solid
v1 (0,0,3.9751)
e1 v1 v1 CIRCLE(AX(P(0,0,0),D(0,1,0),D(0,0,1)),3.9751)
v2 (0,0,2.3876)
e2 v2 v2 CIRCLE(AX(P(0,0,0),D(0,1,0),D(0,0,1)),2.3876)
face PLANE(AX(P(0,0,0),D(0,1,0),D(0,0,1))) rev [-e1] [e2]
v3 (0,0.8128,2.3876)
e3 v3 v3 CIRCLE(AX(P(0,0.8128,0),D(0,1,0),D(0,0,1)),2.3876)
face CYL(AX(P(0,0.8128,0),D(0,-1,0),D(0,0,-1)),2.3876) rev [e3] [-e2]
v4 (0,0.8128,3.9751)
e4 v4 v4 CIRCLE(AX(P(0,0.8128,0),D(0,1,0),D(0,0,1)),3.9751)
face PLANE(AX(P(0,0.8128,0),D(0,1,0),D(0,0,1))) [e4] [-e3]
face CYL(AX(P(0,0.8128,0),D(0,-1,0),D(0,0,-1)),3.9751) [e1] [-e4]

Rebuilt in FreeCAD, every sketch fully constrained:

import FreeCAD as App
import Part
import Sketcher

V = App.Vector
Q = App.Units.Quantity

doc = App.newDocument("Part")
body = doc.addObject("PartDesign::Body", "Body")

sketch1 = body.newObject("Sketcher::SketchObject", "Sketch")
sketch1.AttachmentSupport = (doc.getObject("XZ_Plane"), [""])
sketch1.MapMode = "FlatFace"
sketch1.addGeometry(Part.Circle(V(0, 0, 0), V(0, 0, 1), 4), False)
sketch1.addGeometry(Part.Circle(V(0, 0, 0), V(0, 0, 1), 2.4), False)
sketch1.addConstraint(Sketcher.Constraint("Coincident", 0, 3, -1, 1))
sketch1.addConstraint(Sketcher.Constraint("Coincident", 1, 3, -1, 1))
sketch1.addConstraint(Sketcher.Constraint("Diameter", 0, Q("0.313 in")))
sketch1.addConstraint(Sketcher.Constraint("Diameter", 1, Q("0.188 in")))
pad1 = body.newObject("PartDesign::Pad", "Pad")
pad1.Profile = sketch1
pad1.Length = Q("0.032 in")
pad1.Reversed = True

doc.recompute()
